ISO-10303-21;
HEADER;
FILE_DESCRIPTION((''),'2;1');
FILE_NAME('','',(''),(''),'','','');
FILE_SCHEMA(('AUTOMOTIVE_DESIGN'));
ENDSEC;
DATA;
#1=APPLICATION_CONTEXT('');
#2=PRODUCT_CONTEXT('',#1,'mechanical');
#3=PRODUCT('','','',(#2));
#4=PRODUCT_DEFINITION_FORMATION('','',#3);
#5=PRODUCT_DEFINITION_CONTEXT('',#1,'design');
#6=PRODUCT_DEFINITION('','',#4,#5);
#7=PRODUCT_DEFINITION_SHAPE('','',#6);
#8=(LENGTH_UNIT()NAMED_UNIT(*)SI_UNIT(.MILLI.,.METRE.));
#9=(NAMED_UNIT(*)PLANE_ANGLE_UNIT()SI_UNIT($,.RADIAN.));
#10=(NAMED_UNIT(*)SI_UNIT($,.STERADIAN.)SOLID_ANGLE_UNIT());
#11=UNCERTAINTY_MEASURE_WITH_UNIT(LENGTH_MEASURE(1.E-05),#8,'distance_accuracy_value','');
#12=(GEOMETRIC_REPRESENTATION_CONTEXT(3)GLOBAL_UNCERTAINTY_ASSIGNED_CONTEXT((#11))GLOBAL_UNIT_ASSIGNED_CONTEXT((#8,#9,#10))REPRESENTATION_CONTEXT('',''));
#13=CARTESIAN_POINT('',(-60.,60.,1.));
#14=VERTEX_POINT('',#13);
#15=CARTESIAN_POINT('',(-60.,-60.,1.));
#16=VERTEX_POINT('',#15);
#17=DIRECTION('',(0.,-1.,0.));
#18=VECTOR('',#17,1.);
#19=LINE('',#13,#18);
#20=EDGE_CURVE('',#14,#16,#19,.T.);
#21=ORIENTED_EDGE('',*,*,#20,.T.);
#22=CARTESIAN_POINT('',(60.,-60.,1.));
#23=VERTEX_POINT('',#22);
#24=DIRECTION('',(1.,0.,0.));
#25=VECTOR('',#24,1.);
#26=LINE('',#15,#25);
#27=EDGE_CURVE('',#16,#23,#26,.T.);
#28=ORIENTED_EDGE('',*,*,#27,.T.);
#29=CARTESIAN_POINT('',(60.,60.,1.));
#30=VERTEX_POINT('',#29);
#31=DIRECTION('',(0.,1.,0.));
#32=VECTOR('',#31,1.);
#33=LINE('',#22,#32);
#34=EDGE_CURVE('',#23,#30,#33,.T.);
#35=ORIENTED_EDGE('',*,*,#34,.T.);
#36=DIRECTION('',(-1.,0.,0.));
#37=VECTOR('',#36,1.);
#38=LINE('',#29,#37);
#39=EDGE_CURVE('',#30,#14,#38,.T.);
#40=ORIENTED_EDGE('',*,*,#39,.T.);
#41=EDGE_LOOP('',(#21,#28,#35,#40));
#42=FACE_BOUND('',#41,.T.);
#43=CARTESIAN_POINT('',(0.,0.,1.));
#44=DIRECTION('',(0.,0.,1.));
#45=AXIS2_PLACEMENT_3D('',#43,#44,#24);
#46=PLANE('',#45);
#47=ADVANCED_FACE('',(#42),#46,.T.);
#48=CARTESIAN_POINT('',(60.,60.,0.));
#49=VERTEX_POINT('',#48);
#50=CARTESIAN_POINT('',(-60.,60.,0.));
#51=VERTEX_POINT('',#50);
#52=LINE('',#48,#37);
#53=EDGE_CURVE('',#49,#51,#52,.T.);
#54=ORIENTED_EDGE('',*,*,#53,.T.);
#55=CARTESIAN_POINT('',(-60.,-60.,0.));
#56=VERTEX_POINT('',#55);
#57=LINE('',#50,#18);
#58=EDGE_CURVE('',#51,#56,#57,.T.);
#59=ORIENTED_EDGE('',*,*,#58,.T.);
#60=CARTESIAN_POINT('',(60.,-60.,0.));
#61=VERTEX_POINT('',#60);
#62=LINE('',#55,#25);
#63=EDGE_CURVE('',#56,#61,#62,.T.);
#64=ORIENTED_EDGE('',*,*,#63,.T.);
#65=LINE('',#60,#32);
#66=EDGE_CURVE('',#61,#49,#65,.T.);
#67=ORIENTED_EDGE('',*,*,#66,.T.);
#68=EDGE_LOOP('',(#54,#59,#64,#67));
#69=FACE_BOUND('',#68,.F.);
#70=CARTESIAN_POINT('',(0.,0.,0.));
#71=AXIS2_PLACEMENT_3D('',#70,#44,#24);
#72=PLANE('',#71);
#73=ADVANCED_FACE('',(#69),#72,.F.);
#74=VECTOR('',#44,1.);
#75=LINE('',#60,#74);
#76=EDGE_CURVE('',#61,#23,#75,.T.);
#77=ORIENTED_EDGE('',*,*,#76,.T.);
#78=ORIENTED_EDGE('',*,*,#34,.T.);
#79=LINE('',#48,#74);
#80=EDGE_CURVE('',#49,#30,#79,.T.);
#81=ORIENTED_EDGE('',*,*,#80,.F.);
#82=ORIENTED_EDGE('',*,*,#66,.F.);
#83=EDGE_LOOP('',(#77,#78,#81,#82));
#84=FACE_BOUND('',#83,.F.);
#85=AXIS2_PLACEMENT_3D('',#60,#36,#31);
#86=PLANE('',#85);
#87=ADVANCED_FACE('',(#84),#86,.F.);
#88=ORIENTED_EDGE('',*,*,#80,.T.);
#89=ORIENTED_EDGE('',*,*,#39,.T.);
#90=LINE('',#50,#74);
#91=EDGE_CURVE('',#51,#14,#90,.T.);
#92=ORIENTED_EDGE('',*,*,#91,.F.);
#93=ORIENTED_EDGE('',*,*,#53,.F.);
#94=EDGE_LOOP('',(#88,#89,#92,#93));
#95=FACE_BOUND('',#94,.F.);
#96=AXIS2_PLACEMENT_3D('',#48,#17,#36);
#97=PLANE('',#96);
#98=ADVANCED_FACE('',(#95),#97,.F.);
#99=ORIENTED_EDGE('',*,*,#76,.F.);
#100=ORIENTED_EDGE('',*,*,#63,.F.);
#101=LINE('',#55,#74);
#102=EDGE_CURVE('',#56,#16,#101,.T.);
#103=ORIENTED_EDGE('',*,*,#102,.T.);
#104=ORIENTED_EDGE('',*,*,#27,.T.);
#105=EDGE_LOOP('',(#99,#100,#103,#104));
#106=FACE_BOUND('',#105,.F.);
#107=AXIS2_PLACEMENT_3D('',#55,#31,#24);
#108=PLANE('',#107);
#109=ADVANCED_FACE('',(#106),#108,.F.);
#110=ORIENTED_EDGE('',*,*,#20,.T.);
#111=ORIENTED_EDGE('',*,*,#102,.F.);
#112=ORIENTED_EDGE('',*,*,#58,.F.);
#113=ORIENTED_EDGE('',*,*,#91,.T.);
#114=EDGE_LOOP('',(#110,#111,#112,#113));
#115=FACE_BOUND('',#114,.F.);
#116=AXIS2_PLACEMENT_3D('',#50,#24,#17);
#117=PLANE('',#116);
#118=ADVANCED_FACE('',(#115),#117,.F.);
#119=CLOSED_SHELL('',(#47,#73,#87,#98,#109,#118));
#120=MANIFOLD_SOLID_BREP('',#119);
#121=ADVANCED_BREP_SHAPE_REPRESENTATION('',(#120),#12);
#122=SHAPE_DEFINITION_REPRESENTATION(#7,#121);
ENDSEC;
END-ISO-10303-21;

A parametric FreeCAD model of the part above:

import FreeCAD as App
import Part
import Sketcher

V = App.Vector

doc = App.newDocument("Part")
body = doc.addObject("PartDesign::Body", "Body")

sketch1 = body.newObject("Sketcher::SketchObject", "Sketch")
sketch1.AttachmentSupport = (doc.getObject("XY_Plane"), [""])
sketch1.MapMode = "FlatFace"
sketch1.addGeometry(Part.LineSegment(V(-60, 60, 0), V(-60, -60, 0)), False)
sketch1.addGeometry(Part.LineSegment(V(-60, -60, 0), V(60, -60, 0)), False)
sketch1.addGeometry(Part.LineSegment(V(60, -60, 0), V(60, 60, 0)), False)
sketch1.addGeometry(Part.LineSegment(V(60, 60, 0), V(-60, 60, 0)), False)
sketch1.addConstraint(Sketcher.Constraint("Coincident", 0, 2, 1, 1))
sketch1.addConstraint(Sketcher.Constraint("Coincident", 1, 2, 2, 1))
sketch1.addConstraint(Sketcher.Constraint("Coincident", 2, 2, 3, 1))
sketch1.addConstraint(Sketcher.Constraint("Coincident", 3, 2, 0, 1))
sketch1.addConstraint(Sketcher.Constraint("Vertical", 0))
sketch1.addConstraint(Sketcher.Constraint("Horizontal", 1))
sketch1.addConstraint(Sketcher.Constraint("Vertical", 2))
sketch1.addConstraint(Sketcher.Constraint("Horizontal", 3))
sketch1.addConstraint(Sketcher.Constraint("Symmetric", 0, 2, 2, 2, -1, 1))
sketch1.addConstraint(Sketcher.Constraint("Equal", 3, 0))
sketch1.addConstraint(Sketcher.Constraint("DistanceX", 1, 1, 1, 2, 120.0))
pad1 = body.newObject("PartDesign::Pad", "Pad")
pad1.Profile = sketch1
pad1.Length = 1

doc.recompute()
